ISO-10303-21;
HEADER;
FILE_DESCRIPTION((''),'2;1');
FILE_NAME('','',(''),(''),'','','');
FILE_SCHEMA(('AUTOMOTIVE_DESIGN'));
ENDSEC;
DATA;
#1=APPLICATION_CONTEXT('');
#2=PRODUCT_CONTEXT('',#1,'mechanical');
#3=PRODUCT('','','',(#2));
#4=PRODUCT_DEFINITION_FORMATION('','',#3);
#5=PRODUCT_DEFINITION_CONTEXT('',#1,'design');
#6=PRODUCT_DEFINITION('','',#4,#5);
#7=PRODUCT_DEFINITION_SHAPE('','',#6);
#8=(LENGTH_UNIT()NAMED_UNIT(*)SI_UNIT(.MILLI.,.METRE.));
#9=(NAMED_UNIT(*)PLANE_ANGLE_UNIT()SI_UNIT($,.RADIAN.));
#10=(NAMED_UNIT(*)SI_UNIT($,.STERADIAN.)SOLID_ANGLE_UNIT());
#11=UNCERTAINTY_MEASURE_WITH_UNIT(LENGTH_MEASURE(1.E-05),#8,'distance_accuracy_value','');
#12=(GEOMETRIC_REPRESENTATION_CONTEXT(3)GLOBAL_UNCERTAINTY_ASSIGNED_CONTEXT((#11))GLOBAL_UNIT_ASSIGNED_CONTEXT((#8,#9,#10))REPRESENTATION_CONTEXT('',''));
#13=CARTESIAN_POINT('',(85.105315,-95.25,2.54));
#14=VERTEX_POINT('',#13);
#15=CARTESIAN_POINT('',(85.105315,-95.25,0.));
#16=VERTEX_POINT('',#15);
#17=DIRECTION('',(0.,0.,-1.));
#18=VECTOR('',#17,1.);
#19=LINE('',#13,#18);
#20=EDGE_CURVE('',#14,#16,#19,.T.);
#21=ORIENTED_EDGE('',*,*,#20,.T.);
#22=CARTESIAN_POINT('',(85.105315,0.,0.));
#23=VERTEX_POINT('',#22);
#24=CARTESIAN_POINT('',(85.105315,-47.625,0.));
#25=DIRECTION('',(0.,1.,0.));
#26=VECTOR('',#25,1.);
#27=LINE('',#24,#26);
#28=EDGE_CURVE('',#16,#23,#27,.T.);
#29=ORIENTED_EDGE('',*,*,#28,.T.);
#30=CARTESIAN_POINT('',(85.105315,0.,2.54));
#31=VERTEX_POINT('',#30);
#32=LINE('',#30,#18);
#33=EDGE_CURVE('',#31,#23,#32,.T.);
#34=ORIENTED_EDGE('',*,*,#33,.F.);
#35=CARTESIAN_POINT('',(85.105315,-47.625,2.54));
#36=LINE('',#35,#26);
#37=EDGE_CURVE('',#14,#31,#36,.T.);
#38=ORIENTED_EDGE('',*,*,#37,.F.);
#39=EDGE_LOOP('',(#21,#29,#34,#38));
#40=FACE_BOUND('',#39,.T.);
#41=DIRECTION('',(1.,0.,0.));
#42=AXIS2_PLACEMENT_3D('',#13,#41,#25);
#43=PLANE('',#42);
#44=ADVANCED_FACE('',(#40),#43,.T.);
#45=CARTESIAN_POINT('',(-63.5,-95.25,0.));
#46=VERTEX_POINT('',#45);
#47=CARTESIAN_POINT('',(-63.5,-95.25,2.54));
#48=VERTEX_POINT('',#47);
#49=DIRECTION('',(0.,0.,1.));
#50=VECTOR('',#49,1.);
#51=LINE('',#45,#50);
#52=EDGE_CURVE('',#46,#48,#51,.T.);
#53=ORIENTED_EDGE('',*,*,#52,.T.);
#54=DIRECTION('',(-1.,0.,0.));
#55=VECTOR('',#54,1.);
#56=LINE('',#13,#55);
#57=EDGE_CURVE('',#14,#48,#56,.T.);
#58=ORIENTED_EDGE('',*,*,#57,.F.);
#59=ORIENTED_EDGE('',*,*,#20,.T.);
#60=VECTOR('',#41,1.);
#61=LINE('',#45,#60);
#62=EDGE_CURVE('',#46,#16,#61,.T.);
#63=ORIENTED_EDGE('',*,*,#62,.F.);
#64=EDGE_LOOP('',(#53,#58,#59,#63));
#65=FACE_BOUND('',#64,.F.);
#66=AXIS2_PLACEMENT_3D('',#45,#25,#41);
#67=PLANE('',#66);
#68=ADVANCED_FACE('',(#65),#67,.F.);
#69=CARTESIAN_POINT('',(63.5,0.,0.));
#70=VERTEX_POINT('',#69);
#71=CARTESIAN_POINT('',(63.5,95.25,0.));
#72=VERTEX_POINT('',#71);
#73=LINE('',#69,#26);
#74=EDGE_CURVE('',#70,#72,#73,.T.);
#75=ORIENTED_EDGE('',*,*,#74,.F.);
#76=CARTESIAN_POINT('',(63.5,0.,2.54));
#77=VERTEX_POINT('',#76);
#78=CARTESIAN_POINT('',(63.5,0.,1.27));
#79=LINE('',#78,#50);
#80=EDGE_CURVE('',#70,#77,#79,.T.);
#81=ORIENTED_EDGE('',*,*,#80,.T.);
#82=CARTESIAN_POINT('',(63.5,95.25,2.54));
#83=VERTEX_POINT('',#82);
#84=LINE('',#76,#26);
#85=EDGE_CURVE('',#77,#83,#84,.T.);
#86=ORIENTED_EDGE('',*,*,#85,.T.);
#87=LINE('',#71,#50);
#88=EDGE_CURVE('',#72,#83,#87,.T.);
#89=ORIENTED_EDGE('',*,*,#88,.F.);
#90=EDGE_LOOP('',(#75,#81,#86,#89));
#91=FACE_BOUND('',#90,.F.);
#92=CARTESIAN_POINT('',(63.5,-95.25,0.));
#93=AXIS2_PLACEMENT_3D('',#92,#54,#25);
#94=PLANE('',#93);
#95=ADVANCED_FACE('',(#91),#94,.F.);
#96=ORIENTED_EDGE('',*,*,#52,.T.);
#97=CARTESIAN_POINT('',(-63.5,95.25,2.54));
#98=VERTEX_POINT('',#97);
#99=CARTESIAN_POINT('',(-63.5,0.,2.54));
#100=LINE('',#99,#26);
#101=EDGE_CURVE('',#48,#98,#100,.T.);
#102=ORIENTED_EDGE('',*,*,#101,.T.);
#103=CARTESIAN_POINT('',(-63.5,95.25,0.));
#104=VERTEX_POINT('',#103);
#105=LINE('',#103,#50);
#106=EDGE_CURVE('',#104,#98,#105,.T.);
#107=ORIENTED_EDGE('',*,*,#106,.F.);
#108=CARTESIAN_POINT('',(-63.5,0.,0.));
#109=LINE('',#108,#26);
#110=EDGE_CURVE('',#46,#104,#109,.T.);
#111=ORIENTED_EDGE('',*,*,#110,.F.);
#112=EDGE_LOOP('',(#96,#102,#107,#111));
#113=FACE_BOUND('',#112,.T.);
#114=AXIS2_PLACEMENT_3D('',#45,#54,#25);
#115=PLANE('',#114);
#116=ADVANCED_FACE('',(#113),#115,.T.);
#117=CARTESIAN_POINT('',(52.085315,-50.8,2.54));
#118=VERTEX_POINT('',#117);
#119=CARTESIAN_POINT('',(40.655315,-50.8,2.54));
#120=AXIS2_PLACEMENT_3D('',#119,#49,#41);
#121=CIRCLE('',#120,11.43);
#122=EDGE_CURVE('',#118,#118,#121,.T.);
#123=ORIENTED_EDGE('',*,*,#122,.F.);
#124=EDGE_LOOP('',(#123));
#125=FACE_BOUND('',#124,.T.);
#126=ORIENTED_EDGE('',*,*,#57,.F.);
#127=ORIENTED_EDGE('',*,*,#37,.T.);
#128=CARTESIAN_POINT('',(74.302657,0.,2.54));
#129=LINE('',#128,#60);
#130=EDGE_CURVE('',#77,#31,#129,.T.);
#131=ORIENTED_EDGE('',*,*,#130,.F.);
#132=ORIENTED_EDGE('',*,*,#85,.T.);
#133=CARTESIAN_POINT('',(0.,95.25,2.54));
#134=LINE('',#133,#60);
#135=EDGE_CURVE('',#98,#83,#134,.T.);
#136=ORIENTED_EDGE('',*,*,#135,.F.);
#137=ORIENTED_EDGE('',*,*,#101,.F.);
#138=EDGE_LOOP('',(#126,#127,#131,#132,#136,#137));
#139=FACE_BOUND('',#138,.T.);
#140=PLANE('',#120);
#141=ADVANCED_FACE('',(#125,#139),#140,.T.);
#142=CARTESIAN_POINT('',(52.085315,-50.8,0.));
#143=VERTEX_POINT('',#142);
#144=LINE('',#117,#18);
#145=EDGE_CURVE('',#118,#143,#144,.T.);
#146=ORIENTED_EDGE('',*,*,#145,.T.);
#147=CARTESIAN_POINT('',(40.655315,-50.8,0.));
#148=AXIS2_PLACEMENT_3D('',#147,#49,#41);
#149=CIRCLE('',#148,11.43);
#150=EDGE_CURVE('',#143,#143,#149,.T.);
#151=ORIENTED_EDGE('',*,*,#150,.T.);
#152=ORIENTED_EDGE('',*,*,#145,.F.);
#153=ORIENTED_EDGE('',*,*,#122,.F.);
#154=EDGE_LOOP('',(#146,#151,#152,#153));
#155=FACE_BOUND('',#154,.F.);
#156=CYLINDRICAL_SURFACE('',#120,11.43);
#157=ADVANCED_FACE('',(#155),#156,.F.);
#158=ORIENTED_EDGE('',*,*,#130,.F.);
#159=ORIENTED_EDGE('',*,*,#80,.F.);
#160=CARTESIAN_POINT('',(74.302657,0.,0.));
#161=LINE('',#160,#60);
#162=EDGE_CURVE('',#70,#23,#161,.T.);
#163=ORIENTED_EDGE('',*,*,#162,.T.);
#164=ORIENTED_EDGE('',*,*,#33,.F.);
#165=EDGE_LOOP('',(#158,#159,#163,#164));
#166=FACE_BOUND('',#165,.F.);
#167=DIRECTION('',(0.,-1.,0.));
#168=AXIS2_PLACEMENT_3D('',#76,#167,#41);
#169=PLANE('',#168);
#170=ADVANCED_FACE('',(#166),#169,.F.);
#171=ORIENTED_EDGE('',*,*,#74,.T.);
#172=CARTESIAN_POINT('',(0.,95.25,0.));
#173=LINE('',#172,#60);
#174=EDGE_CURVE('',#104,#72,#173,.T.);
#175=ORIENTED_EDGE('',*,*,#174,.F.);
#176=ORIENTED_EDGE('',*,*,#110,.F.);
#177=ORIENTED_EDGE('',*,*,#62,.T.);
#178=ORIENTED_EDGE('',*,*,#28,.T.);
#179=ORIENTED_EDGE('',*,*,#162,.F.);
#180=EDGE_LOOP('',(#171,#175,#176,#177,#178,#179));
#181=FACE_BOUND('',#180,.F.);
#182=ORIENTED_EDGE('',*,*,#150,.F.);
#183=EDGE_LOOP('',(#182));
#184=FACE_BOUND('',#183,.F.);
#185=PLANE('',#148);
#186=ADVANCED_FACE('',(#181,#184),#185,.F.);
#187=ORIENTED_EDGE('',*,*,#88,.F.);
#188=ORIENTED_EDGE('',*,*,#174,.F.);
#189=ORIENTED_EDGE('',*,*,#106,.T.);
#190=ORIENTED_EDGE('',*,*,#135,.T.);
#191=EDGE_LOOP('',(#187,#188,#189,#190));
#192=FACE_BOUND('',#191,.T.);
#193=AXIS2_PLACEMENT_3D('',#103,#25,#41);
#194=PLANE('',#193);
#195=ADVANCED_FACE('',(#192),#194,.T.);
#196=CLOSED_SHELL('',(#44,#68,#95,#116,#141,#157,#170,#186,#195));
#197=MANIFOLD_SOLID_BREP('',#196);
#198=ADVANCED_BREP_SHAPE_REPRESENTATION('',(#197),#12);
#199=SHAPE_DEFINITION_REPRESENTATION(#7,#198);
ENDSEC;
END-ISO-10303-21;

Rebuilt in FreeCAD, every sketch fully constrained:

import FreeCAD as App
import Part
import Sketcher
from FreeCAD import Vector
Q = App.Units.Quantity

doc = App.newDocument("Part")
body = doc.addObject("PartDesign::Body", "Body")

# Sketch on XY plane
sketch1 = body.newObject("Sketcher::SketchObject", "Sketch")
sketch1.AttachmentSupport = (doc.getObject("XY_Plane"), [""])
sketch1.MapMode = "FlatFace"
sketch1.addGeometry([
    Part.LineSegment(Vector(-64, 95, 0), Vector(-64, -95, 0)),
    Part.LineSegment(Vector(-64, -95, 0), Vector(64, -95, 0)),
    Part.LineSegment(Vector(64, -95, 0), Vector(64, 95, 0)),
    Part.LineSegment(Vector(64, 95, 0), Vector(-64, 95, 0)),
], False)
sketch1.addConstraint([
    Sketcher.Constraint("Coincident", 0, 2, 1, 1),
    Sketcher.Constraint("Coincident", 1, 2, 2, 1),
    Sketcher.Constraint("Coincident", 2, 2, 3, 1),
    Sketcher.Constraint("Coincident", 3, 2, 0, 1),
    Sketcher.Constraint("Vertical", 0),
    Sketcher.Constraint("Horizontal", 1),
    Sketcher.Constraint("Vertical", 2),
    Sketcher.Constraint("Horizontal", 3),
    Sketcher.Constraint("Symmetric", 0, 2, 2, 2, -1, 1),
    Sketcher.Constraint("DistanceX", 1, 1, 1, 2, Q("5 in")),
    Sketcher.Constraint("DistanceY", 0, 2, 0, 1, Q("7.5 in")),
])
pad1 = body.newObject("PartDesign::Pad", "Pad")
pad1.Profile = sketch1
pad1.Length = Q("0.1 in")

# Sketch on XY plane
sketch2 = body.newObject("Sketcher::SketchObject", "Sketch001")
sketch2.AttachmentSupport = (doc.getObject("XY_Plane"), [""])
sketch2.MapMode = "FlatFace"
sketch2.AttachmentOffset = App.Placement(Vector(0, 0, 0.1 * 25.4), App.Rotation())
sketch2.addGeometry([
    Part.LineSegment(Vector(63, 0, 0), Vector(63, -95, 0)),
    Part.LineSegment(Vector(63, -95, 0), Vector(85, -95, 0)),
    Part.LineSegment(Vector(85, -95, 0), Vector(85, 0, 0)),
    Part.LineSegment(Vector(85, 0, 0), Vector(63, 0, 0)),
], False)
sketch2.addConstraint([
    Sketcher.Constraint("Coincident", 0, 2, 1, 1),
    Sketcher.Constraint("Coincident", 1, 2, 2, 1),
    Sketcher.Constraint("Coincident", 2, 2, 3, 1),
    Sketcher.Constraint("Coincident", 3, 2, 0, 1),
    Sketcher.Constraint("Vertical", 0),
    Sketcher.Constraint("Horizontal", 1),
    Sketcher.Constraint("Vertical", 2),
    Sketcher.Constraint("Horizontal", 3),
    Sketcher.Constraint("PointOnObject", 2, 2, -1),
    Sketcher.Constraint("DistanceY", 0, 2, 0, 1, Q("3.75 in")),
    Sketcher.Constraint("DistanceX", -1, 1, 0, 2, Q("2.5 in")),
    Sketcher.Constraint("DistanceX", 1, 1, 1, 2, 21.605315),
])
pad2 = body.newObject("PartDesign::Pad", "Pad001")
pad2.Profile = sketch2
pad2.Length = Q("0.1 in")
pad2.Reversed = True

# Sketch on XY plane
sketch3 = body.newObject("Sketcher::SketchObject", "Sketch002")
sketch3.AttachmentSupport = (doc.getObject("XY_Plane"), [""])
sketch3.MapMode = "FlatFace"
sketch3.AttachmentOffset = App.Placement(Vector(0, 0, 0.1 * 25.4), App.Rotation())
sketch3.addGeometry(Part.Circle(Vector(41, -51, 0), Vector(0, 0, 1), 13), False)
sketch3.addConstraint([
    Sketcher.Constraint("Diameter", 0, Q("1 in")),
    Sketcher.Constraint("DistanceY", 0, 3, -1, 1, Q("2 in")),
    Sketcher.Constraint("DistanceX", -1, 1, 0, 3, 40.655315),
])
pocket1 = body.newObject("PartDesign::Pocket", "Pocket")
pocket1.Profile = sketch3
pocket1.Length = 101.870598

# Sketch on XY plane
sketch4 = body.newObject("Sketcher::SketchObject", "Sketch003")
sketch4.AttachmentSupport = (doc.getObject("XY_Plane"), [""])
sketch4.MapMode = "FlatFace"
sketch4.AttachmentOffset = App.Placement(Vector(0, 0, 0.1 * 25.4), App.Rotation())
sketch4.addGeometry([
    Part.Circle(Vector(41, -51, 0), Vector(0, 0, 1), 13),
    Part.Circle(Vector(41, -51, 0), Vector(0, 0, 1), 11),
], False)
sketch4.addConstraint([
    Sketcher.Constraint("Coincident", 1, 3, 0, 3),
    Sketcher.Constraint("Diameter", 0, Q("1 in")),
    Sketcher.Constraint("Diameter", 1, Q("0.9 in")),
    Sketcher.Constraint("DistanceY", 0, 3, -1, 1, Q("2 in")),
    Sketcher.Constraint("DistanceX", -1, 1, 0, 3, 40.655315),
])
pad3 = body.newObject("PartDesign::Pad", "Pad002")
pad3.Profile = sketch4
pad3.Length = Q("0.1 in")
pad3.Reversed = True

doc.recompute()
